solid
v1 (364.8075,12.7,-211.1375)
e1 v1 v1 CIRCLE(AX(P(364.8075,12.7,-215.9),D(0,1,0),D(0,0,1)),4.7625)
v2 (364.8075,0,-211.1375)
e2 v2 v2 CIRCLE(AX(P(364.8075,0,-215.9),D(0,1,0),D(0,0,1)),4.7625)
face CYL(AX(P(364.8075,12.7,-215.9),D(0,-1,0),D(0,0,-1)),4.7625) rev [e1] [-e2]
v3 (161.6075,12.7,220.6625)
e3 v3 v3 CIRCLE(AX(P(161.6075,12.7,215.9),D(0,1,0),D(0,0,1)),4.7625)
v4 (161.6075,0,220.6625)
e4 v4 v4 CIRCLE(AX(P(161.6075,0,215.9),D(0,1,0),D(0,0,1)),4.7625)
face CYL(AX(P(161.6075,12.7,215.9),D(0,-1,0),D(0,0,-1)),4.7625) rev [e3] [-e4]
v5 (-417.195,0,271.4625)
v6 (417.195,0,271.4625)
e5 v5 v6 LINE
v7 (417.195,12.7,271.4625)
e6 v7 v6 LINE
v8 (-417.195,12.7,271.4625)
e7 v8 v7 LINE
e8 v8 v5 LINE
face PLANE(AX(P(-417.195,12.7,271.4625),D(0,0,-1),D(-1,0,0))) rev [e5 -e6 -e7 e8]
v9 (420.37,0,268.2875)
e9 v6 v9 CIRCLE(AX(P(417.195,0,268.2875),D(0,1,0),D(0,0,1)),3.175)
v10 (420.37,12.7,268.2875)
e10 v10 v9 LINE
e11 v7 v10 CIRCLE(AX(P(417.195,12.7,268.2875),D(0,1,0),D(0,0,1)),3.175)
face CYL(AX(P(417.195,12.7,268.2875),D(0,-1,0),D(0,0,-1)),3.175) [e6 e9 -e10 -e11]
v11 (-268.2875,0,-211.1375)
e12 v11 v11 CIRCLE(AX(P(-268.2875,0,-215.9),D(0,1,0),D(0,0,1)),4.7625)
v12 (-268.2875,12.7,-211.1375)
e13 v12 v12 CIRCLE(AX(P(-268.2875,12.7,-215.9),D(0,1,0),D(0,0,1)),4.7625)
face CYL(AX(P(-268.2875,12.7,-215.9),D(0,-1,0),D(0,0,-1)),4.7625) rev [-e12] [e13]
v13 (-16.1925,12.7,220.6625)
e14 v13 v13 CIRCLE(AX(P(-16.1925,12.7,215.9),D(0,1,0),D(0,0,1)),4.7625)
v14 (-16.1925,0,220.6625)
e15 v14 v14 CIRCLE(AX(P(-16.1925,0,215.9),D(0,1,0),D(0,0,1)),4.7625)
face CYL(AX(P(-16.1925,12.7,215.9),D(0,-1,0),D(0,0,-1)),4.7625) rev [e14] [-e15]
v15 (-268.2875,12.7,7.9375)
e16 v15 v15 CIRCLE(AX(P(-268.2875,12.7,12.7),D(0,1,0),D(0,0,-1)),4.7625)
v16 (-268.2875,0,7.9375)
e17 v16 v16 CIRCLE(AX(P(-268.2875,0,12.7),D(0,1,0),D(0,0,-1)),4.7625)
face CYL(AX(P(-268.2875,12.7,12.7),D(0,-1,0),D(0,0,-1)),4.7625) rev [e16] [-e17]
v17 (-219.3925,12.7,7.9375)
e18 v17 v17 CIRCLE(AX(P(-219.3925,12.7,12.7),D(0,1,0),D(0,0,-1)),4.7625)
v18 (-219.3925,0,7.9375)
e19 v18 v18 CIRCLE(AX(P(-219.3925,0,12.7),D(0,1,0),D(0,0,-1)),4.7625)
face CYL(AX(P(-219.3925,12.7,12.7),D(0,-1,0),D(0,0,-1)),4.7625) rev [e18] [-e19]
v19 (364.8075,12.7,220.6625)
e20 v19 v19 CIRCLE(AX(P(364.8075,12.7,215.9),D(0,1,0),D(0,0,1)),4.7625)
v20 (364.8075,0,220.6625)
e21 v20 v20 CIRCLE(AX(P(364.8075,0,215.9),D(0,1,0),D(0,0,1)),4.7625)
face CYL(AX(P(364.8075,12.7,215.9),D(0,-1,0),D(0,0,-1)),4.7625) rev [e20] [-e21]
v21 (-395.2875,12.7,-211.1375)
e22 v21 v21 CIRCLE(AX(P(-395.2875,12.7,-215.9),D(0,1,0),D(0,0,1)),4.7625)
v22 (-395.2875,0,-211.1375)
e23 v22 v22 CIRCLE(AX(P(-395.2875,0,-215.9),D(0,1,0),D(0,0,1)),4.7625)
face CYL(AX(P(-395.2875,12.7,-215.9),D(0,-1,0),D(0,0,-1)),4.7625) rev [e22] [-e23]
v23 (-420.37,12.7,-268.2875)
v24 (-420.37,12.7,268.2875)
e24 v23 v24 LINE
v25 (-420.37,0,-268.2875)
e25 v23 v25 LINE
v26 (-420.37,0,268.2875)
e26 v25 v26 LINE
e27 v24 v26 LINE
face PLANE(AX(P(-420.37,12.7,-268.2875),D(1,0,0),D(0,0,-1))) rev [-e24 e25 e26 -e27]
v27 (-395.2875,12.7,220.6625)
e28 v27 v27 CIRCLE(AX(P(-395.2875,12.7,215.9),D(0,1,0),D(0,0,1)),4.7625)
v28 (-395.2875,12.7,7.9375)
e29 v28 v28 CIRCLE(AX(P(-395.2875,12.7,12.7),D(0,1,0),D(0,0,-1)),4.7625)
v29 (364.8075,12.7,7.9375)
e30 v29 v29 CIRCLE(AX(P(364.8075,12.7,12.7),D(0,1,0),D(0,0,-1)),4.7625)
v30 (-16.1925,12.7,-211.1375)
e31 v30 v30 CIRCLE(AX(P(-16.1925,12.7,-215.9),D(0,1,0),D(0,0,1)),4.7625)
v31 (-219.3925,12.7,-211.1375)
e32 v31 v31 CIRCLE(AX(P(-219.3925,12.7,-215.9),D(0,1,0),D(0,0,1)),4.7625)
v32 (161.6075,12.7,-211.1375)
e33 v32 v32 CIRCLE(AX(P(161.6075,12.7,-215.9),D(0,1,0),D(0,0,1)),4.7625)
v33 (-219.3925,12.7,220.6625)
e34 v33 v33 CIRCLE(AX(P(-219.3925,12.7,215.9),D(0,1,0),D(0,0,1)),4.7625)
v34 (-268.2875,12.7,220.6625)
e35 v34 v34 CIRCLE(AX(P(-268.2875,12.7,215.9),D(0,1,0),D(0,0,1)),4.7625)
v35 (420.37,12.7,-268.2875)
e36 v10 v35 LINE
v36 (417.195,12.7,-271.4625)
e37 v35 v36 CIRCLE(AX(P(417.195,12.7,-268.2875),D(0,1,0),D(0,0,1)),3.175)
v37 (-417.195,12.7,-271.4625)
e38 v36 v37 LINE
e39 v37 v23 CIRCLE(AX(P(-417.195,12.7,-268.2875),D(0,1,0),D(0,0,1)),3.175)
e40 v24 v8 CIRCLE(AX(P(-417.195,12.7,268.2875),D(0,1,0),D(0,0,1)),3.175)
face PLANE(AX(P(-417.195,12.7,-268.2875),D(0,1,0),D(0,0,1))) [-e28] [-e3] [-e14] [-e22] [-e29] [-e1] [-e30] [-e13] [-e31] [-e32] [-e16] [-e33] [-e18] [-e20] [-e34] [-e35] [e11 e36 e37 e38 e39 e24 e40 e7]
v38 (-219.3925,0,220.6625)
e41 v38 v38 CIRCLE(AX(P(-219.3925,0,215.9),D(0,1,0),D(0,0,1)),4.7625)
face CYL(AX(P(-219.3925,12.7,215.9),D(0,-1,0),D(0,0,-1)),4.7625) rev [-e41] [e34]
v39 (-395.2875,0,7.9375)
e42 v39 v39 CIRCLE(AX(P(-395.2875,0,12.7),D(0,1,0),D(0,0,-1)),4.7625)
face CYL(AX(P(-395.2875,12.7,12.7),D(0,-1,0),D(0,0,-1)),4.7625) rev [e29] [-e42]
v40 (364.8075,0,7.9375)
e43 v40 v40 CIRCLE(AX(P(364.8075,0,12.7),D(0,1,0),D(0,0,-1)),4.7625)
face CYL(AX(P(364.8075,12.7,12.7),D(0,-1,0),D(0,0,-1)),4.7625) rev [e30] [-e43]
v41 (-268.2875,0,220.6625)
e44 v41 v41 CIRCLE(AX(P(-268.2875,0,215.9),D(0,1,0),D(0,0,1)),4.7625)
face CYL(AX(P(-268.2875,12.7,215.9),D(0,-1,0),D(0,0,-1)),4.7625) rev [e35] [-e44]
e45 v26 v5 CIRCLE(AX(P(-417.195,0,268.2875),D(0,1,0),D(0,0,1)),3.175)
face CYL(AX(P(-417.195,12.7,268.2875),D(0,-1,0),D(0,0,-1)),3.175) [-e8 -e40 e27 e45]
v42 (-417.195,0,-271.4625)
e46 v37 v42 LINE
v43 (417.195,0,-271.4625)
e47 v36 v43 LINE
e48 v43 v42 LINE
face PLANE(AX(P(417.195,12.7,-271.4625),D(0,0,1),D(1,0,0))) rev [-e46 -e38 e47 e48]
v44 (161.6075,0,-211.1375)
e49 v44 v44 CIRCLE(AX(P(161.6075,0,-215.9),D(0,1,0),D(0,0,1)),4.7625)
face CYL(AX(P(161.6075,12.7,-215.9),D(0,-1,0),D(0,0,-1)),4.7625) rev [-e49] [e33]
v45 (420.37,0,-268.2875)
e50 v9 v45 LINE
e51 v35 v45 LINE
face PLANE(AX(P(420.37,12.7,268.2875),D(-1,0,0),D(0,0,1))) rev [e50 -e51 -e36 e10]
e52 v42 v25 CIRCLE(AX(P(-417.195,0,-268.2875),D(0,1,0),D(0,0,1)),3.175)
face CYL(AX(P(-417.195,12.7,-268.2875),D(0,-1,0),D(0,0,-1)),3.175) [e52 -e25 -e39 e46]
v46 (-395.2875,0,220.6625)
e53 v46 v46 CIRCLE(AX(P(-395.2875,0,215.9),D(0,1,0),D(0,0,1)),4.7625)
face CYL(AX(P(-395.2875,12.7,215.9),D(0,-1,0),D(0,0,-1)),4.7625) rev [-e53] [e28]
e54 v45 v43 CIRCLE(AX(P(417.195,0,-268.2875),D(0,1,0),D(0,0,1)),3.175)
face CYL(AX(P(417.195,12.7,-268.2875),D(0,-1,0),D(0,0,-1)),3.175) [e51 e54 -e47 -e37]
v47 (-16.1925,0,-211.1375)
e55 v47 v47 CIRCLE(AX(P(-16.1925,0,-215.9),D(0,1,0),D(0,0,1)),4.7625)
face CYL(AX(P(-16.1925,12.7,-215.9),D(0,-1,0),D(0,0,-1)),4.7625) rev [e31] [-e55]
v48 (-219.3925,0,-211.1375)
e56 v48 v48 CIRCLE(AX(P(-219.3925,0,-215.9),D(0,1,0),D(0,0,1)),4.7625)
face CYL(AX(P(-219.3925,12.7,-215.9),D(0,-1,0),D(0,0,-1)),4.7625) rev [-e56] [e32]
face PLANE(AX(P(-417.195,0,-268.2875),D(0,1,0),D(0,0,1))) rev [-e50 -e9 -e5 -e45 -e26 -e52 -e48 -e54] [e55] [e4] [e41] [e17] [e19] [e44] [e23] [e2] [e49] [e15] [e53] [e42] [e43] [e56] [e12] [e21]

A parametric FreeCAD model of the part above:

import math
import FreeCAD as App
import Part
import Sketcher
from FreeCAD import Vector
Q = App.Units.Quantity

doc = App.newDocument("Part")
params = doc.addObject("Spreadsheet::Sheet", "Params")
for row, (alias, value) in enumerate([
    ("sketch1_diameter", "0.375 in"),
    ("sketch1_radius", "0.125 in"),
    ("sketch1_width", "32.85 in"),
    ("sketch1_height", "21.125 in"),
    ("pad1_length", "0.5 in"),
], start=1):
    params.set(f"A{row}", alias)
    params.set(f"B{row}", "=" + value)
    params.setAlias(f"B{row}", alias)

body = doc.addObject("PartDesign::Body", "Body")

sketch1 = body.newObject("Sketcher::SketchObject", "Sketch")
sketch1.AttachmentSupport = (doc.getObject("XZ_Plane"), [""])
sketch1.MapMode = "FlatFace"
sketch1.addGeometry(Part.LineSegment(Vector(-420.4, -268.3, 0), Vector(-420.4, 268.3, 0)), False)
sketch1.addGeometry(Part.ArcOfCircle(Part.Circle(Vector(-417.2, 268.3, 0), Vector(0, 0, 1), 3.2), math.radians(90), math.radians(180)), False)
sketch1.addGeometry(Part.LineSegment(Vector(-417.2, 271.5, 0), Vector(417.2, 271.5, 0)), False)
sketch1.addGeometry(Part.ArcOfCircle(Part.Circle(Vector(417.2, 268.3, 0), Vector(0, 0, 1), 3.2), math.radians(0), math.radians(90)), False)
sketch1.addGeometry(Part.LineSegment(Vector(420.4, 268.3, 0), Vector(420.4, -268.3, 0)), False)
sketch1.addGeometry(Part.ArcOfCircle(Part.Circle(Vector(417.2, -268.3, 0), Vector(0, 0, 1), 3.2), math.radians(-90), math.radians(0)), False)
sketch1.addGeometry(Part.LineSegment(Vector(417.2, -271.5, 0), Vector(-417.2, -271.5, 0)), False)
sketch1.addGeometry(Part.ArcOfCircle(Part.Circle(Vector(-417.2, -268.3, 0), Vector(0, 0, 1), 3.2), math.radians(-180), math.radians(-90)), False)
sketch1.addGeometry(Part.Circle(Vector(-395.3, 215.9, 0), Vector(0, 0, 1), 4.8), False)
sketch1.addGeometry(Part.Circle(Vector(-268.3, 215.9, 0), Vector(0, 0, 1), 4.8), False)
sketch1.addGeometry(Part.Circle(Vector(-219.4, 215.9, 0), Vector(0, 0, 1), 4.8), False)
sketch1.addGeometry(Part.Circle(Vector(-16.2, 215.9, 0), Vector(0, 0, 1), 4.8), False)
sketch1.addGeometry(Part.Circle(Vector(-395.3, 12.7, 0), Vector(0, 0, 1), 4.8), False)
sketch1.addGeometry(Part.Circle(Vector(-268.3, 12.7, 0), Vector(0, 0, 1), 4.8), False)
sketch1.addGeometry(Part.Circle(Vector(-219.4, 12.7, 0), Vector(0, 0, 1), 4.8), False)
sketch1.addGeometry(Part.Circle(Vector(161.6, 215.9, 0), Vector(0, 0, 1), 4.8), False)
sketch1.addGeometry(Part.Circle(Vector(364.8, 215.9, 0), Vector(0, 0, 1), 4.8), False)
sketch1.addGeometry(Part.Circle(Vector(364.8, 12.7, 0), Vector(0, 0, 1), 4.8), False)
sketch1.addGeometry(Part.Circle(Vector(-395.3, -215.9, 0), Vector(0, 0, 1), 4.8), False)
sketch1.addGeometry(Part.Circle(Vector(-268.3, -215.9, 0), Vector(0, 0, 1), 4.8), False)
sketch1.addGeometry(Part.Circle(Vector(-219.4, -215.9, 0), Vector(0, 0, 1), 4.8), False)
sketch1.addGeometry(Part.Circle(Vector(-16.2, -215.9, 0), Vector(0, 0, 1), 4.8), False)
sketch1.addGeometry(Part.Circle(Vector(161.6, -215.9, 0), Vector(0, 0, 1), 4.8), False)
sketch1.addGeometry(Part.Circle(Vector(364.8, -215.9, 0), Vector(0, 0, 1), 4.8), False)
sketch1.addConstraint(Sketcher.Constraint("Tangent", 0, 2, 1, 2))
sketch1.addConstraint(Sketcher.Constraint("Tangent", 1, 1, 2, 1))
sketch1.addConstraint(Sketcher.Constraint("Tangent", 2, 2, 3, 2))
sketch1.addConstraint(Sketcher.Constraint("Tangent", 3, 1, 4, 1))
sketch1.addConstraint(Sketcher.Constraint("Tangent", 4, 2, 5, 2))
sketch1.addConstraint(Sketcher.Constraint("Tangent", 5, 1, 6, 1))
sketch1.addConstraint(Sketcher.Constraint("Tangent", 6, 2, 7, 2))
sketch1.addConstraint(Sketcher.Constraint("Tangent", 7, 1, 0, 1))
sketch1.addConstraint(Sketcher.Constraint("Vertical", 0))
sketch1.addConstraint(Sketcher.Constraint("Horizontal", 2))
sketch1.addConstraint(Sketcher.Constraint("Vertical", 4))
sketch1.addConstraint(Sketcher.Constraint("Horizontal", 6))
sketch1.addConstraint(Sketcher.Constraint("Equal", 1, 3))
sketch1.addConstraint(Sketcher.Constraint("Equal", 3, 5))
sketch1.addConstraint(Sketcher.Constraint("Equal", 5, 7))
sketch1.addConstraint(Sketcher.Constraint("Equal", 8, 9))
sketch1.addConstraint(Sketcher.Constraint("Equal", 9, 10))
sketch1.addConstraint(Sketcher.Constraint("Equal", 10, 11))
sketch1.addConstraint(Sketcher.Constraint("Equal", 11, 12))
sketch1.addConstraint(Sketcher.Constraint("Equal", 12, 13))
sketch1.addConstraint(Sketcher.Constraint("Equal", 13, 14))
sketch1.addConstraint(Sketcher.Constraint("Equal", 14, 15))
sketch1.addConstraint(Sketcher.Constraint("Equal", 15, 16))
sketch1.addConstraint(Sketcher.Constraint("Equal", 16, 17))
sketch1.addConstraint(Sketcher.Constraint("Equal", 17, 18))
sketch1.addConstraint(Sketcher.Constraint("Equal", 18, 19))
sketch1.addConstraint(Sketcher.Constraint("Equal", 19, 20))
sketch1.addConstraint(Sketcher.Constraint("Equal", 20, 21))
sketch1.addConstraint(Sketcher.Constraint("Equal", 21, 22))
sketch1.addConstraint(Sketcher.Constraint("Equal", 22, 23))
sketch1.addConstraint(Sketcher.Constraint("Symmetric", 1, 3, 5, 3, -1, 1))
sketch1.addConstraint(Sketcher.Constraint("Symmetric", 8, 3, 18, 3, -1))
sketch1.addConstraint(Sketcher.Constraint("Symmetric", 9, 3, 19, 3, -1))
sketch1.addConstraint(Sketcher.Constraint("Symmetric", 10, 3, 20, 3, -1))
sketch1.addConstraint(Sketcher.Constraint("Symmetric", 11, 3, 21, 3, -1))
sketch1.addConstraint(Sketcher.Constraint("Symmetric", 15, 3, 22, 3, -1))
sketch1.addConstraint(Sketcher.Constraint("Symmetric", 16, 3, 23, 3, -1))
sketch1.addConstraint(Sketcher.Constraint("Horizontal", 8, 3, 9, 3))
sketch1.addConstraint(Sketcher.Constraint("Horizontal", 9, 3, 10, 3))
sketch1.addConstraint(Sketcher.Constraint("Horizontal", 10, 3, 11, 3))
sketch1.addConstraint(Sketcher.Constraint("Horizontal", 12, 3, 13, 3))
sketch1.addConstraint(Sketcher.Constraint("Horizontal", 13, 3, 14, 3))
sketch1.addConstraint(Sketcher.Constraint("Horizontal", 11, 3, 15, 3))
sketch1.addConstraint(Sketcher.Constraint("Horizontal", 15, 3, 16, 3))
sketch1.addConstraint(Sketcher.Constraint("Horizontal", 14, 3, 17, 3))
sketch1.addConstraint(Sketcher.Constraint("Vertical", 8, 3, 12, 3))
sketch1.addConstraint(Sketcher.Constraint("Vertical", 9, 3, 13, 3))
sketch1.addConstraint(Sketcher.Constraint("Vertical", 10, 3, 14, 3))
sketch1.addConstraint(Sketcher.Constraint("Vertical", 16, 3, 17, 3))
sketch1.addConstraint(Sketcher.Constraint("Diameter", 8, Q("0.375 in")))
sketch1.addConstraint(Sketcher.Constraint("Radius", 1, Q("0.125 in")))
sketch1.addConstraint(Sketcher.Constraint("DistanceX", 8, 3, 9, 3, Q("5 in")))
sketch1.addConstraint(Sketcher.Constraint("DistanceX", 10, 3, 11, 3, Q("8 in")))
sketch1.addConstraint(Sketcher.Constraint("DistanceY", 12, 3, 8, 3, Q("8 in")))
sketch1.addConstraint(Sketcher.Constraint("DistanceX", 11, 3, 15, 3, Q("7 in")))
sketch1.addConstraint(Sketcher.Constraint("DistanceX", 15, 3, 16, 3, Q("8 in")))
sketch1.addConstraint(Sketcher.Constraint("DistanceY", 18, 3, 12, 3, Q("9 in")))
sketch1.addConstraint(Sketcher.Constraint("DistanceX", 2, 1, 2, 2, Q("32.85 in")))
sketch1.addConstraint(Sketcher.Constraint("DistanceY", 0, 1, 0, 2, Q("21.125 in")))
sketch1.addConstraint(Sketcher.Constraint("DistanceX", 8, 3, -1, 1, Q("15.5625 in")))
sketch1.addConstraint(Sketcher.Constraint("DistanceX", 9, 3, 10, 3, Q("1.925 in")))
sketch1.setExpression("Constraints[49]", "Params.sketch1_diameter")
sketch1.setExpression("Constraints[50]", "Params.sketch1_radius")
sketch1.setExpression("Constraints[57]", "Params.sketch1_width")
sketch1.setExpression("Constraints[58]", "Params.sketch1_height")
pad1 = body.newObject("PartDesign::Pad", "Pad")
pad1.Profile = sketch1
pad1.setExpression("Length", "Params.pad1_length")
pad1.Reversed = True

doc.recompute()
